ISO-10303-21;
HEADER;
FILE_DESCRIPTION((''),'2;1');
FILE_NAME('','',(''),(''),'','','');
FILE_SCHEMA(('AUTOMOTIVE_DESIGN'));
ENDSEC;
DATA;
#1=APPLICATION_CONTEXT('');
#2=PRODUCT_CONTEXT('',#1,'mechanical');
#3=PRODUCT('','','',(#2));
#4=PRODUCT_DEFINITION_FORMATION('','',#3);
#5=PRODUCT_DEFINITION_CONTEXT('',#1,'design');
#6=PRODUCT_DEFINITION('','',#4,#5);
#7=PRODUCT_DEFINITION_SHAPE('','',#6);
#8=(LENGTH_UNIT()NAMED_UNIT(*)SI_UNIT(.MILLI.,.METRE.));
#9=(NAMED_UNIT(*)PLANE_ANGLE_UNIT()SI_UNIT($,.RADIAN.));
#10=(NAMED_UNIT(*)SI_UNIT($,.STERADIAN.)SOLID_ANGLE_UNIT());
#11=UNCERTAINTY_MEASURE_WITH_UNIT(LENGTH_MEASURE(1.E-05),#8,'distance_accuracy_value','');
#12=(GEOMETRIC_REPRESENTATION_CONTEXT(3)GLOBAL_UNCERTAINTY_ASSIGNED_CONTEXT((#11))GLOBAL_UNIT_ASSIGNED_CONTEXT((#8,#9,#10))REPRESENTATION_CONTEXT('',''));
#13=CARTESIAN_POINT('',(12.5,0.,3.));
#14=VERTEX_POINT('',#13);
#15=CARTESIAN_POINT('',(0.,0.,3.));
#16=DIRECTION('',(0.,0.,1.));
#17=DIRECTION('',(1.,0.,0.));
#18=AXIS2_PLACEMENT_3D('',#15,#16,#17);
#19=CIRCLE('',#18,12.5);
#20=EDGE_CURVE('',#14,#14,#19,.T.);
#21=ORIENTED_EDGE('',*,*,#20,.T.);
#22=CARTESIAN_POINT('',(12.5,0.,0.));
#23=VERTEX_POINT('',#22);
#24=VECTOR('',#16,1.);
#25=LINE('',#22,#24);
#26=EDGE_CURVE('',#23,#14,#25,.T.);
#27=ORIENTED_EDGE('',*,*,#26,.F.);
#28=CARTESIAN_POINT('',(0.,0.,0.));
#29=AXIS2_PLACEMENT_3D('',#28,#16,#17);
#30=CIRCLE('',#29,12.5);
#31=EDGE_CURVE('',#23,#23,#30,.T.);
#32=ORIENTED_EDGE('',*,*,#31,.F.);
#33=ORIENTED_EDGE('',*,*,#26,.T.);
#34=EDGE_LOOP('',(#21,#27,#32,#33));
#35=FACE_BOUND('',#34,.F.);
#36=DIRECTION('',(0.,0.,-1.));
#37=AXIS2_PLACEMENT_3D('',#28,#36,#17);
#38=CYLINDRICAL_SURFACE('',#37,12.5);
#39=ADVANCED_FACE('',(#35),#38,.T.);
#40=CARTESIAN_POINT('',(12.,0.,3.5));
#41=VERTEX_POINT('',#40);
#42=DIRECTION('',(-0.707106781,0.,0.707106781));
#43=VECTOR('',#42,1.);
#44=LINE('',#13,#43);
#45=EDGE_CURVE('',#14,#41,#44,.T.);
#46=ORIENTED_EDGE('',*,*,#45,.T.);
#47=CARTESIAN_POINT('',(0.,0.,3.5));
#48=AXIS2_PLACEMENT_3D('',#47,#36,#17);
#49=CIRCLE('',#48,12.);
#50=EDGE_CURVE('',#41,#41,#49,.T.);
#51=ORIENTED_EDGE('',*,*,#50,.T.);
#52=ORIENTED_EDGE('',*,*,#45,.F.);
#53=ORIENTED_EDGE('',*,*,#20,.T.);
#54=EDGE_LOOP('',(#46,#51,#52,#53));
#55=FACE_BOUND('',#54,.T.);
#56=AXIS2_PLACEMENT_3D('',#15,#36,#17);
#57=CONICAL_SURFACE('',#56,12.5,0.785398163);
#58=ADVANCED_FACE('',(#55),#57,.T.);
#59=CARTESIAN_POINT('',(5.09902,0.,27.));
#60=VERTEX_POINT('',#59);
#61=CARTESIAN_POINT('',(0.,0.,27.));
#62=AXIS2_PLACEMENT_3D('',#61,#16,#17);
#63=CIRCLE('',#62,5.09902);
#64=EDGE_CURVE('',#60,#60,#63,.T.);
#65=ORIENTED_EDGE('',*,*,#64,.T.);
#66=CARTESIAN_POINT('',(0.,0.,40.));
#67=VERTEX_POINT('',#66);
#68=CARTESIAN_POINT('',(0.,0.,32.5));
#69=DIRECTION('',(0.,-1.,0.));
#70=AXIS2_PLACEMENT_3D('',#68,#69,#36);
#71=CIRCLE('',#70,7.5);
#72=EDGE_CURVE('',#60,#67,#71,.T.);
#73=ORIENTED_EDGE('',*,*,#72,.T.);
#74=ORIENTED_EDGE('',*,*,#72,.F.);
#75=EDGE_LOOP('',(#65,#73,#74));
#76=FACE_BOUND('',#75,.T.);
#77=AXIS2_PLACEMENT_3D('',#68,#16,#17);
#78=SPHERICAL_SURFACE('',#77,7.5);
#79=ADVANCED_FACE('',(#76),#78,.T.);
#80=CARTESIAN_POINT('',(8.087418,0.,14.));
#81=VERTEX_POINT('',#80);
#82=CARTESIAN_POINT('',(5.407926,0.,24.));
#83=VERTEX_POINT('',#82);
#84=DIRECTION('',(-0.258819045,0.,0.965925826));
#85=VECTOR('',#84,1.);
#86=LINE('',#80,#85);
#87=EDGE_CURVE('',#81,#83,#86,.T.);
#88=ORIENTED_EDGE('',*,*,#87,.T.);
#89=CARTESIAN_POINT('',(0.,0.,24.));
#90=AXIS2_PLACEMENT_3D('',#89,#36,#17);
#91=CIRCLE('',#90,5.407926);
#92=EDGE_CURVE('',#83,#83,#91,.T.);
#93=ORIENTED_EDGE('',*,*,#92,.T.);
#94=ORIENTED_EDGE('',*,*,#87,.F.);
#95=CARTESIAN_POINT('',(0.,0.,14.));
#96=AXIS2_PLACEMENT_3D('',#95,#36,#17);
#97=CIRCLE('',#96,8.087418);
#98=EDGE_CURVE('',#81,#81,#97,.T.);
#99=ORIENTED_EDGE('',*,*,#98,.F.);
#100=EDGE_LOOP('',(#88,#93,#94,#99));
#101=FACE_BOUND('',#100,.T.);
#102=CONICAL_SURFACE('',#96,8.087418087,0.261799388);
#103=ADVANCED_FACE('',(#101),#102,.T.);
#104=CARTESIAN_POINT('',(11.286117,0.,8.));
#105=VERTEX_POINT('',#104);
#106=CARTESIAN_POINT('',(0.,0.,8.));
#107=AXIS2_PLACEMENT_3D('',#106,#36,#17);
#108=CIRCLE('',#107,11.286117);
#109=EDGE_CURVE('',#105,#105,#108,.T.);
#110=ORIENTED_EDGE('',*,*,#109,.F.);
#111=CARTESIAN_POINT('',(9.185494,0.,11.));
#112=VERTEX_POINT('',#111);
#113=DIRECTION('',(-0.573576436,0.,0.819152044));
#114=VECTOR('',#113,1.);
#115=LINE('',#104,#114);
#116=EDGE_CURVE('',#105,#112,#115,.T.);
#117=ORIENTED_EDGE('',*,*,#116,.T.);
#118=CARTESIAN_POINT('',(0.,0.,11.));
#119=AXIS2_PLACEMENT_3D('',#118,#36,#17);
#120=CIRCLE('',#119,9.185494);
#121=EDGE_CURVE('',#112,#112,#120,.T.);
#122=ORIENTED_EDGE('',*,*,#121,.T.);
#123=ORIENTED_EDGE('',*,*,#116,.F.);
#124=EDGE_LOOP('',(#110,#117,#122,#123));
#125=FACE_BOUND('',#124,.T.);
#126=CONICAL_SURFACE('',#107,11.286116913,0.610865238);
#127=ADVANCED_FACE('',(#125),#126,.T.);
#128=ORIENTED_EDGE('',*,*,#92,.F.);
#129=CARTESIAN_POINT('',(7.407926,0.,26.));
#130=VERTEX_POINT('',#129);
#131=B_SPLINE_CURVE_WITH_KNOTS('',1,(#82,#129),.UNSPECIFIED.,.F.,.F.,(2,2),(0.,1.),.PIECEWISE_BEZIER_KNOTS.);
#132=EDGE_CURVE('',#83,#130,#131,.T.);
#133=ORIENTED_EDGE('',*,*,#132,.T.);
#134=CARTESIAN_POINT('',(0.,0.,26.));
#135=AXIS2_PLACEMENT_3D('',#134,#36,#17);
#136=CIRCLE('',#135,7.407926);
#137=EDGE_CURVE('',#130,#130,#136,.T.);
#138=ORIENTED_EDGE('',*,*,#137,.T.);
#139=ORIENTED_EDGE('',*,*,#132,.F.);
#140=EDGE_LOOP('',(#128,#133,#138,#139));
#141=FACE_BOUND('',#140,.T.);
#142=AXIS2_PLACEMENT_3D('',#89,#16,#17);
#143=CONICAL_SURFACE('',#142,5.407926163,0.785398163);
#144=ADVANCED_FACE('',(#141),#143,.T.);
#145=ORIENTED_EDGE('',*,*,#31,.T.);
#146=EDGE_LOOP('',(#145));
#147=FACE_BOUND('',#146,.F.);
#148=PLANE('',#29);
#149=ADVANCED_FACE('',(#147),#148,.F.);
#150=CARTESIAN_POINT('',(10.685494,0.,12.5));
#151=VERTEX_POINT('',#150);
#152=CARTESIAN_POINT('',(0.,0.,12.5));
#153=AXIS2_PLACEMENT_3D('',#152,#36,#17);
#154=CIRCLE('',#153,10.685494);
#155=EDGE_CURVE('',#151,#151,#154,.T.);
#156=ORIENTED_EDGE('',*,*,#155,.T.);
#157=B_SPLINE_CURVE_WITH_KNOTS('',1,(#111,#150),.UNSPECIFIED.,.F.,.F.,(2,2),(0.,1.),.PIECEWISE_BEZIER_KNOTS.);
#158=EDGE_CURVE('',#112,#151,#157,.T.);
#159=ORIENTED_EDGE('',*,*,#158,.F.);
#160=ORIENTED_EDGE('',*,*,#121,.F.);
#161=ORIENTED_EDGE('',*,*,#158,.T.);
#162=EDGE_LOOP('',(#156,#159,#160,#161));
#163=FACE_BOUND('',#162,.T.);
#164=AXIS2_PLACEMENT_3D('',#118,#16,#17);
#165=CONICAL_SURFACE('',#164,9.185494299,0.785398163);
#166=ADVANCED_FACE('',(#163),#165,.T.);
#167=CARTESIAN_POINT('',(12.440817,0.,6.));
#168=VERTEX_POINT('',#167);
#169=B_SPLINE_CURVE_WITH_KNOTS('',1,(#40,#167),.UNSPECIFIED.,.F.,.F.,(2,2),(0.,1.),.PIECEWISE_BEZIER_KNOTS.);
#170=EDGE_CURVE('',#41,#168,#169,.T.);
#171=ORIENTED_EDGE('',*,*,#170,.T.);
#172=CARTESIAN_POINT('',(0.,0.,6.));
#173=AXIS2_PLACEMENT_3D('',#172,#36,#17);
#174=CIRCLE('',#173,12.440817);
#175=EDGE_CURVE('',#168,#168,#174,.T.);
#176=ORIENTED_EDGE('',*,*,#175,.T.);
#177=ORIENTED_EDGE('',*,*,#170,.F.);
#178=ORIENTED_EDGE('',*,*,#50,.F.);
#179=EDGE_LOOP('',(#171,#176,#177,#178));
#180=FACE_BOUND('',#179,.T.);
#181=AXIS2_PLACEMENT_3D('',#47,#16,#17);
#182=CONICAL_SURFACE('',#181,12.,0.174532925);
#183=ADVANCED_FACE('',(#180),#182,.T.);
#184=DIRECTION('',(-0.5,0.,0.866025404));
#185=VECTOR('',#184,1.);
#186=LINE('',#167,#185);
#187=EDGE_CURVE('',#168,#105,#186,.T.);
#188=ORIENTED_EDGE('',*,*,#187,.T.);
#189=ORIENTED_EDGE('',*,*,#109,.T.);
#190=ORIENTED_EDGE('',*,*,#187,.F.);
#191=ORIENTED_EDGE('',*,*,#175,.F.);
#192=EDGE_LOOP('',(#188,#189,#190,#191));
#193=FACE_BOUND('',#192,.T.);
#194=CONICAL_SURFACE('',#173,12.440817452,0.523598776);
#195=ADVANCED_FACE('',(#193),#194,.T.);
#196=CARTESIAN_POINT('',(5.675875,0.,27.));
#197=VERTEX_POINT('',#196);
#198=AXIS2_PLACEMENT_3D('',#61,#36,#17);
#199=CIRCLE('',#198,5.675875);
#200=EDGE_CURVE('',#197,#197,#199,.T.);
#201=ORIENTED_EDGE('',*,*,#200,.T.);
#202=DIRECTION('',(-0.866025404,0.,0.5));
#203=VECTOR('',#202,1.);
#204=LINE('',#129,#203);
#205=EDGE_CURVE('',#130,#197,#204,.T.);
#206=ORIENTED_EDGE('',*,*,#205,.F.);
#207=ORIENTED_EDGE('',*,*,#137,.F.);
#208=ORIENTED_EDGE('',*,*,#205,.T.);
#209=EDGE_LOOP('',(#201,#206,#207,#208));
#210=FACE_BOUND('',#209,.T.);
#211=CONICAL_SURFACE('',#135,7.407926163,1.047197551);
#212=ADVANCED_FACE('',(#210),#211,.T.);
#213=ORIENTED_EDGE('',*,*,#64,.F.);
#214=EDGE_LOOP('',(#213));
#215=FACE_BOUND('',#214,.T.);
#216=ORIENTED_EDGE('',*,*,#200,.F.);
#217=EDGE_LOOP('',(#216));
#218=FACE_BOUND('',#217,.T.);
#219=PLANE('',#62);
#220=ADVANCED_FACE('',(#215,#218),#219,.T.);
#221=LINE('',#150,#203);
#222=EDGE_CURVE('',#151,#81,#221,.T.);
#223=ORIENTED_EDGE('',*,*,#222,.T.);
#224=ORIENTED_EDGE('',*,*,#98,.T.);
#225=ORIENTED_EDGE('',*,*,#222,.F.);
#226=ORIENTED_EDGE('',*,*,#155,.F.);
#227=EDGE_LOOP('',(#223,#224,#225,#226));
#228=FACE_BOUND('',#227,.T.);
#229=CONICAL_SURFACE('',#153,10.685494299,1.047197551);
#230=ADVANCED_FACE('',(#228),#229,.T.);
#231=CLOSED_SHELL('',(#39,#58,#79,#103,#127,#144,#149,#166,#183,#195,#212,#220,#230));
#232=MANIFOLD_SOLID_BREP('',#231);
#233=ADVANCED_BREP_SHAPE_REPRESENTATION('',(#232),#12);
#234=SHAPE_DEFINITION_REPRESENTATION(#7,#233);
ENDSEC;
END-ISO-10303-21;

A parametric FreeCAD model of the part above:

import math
import FreeCAD as App
import Part
import Sketcher
from FreeCAD import Vector
Q = App.Units.Quantity

doc = App.newDocument("Part")
body = doc.addObject("PartDesign::Body", "Body")

# Sketch on XY plane
sketch1 = doc.addObject("Sketcher::SketchObject", "Sketch")
body.addObject(sketch1)
sketch1.AttachmentSupport = (doc.XY_Plane, [""])
sketch1.MapMode = "FlatFace"
sketch1.addGeometry(Part.Circle(Vector(0, 0, 0), Vector(0, 0, 1), 12.5), False)
sketch1.addConstraint(Sketcher.Constraint("Coincident", 0, 3, -1, 1))
sketch1.addConstraint(Sketcher.Constraint("Diameter", 0, Q("25 mm")))
pad1 = doc.addObject("PartDesign::Pad", "Pad")
body.addObject(pad1)
pad1.Profile = sketch1
pad1.Length = 3

# Sketch on XY plane
sketch2 = doc.addObject("Sketcher::SketchObject", "Sketch001")
body.addObject(sketch2)
sketch2.AttachmentSupport = (doc.XY_Plane, [""])
sketch2.MapMode = "FlatFace"
sketch2.AttachmentOffset = App.Placement(Vector(0, 0, 3), App.Rotation())
sketch2.addGeometry(Part.Circle(Vector(0, 0, 0), Vector(0, 0, 1), 12.5), False)
sketch2.addConstraint(Sketcher.Constraint("Coincident", 0, 3, -1, 1))
sketch2.addConstraint(Sketcher.Constraint("Diameter", 0, Q("25 mm")))
pad2 = doc.addObject("PartDesign::Pad", "Pad001")
body.addObject(pad2)
pad2.Profile = sketch2
pad2.Length = 0.5
pad2.TaperAngle = -45

# Sketch on XY plane
sketch3 = doc.addObject("Sketcher::SketchObject", "Sketch002")
body.addObject(sketch3)
sketch3.AttachmentSupport = (doc.XY_Plane, [""])
sketch3.MapMode = "FlatFace"
sketch3.AttachmentOffset = App.Placement(Vector(0, 0, 3.5), App.Rotation())
sketch3.addGeometry(Part.Circle(Vector(0, 0, 0), Vector(0, 0, 1), 12), False)
sketch3.addConstraint(Sketcher.Constraint("Coincident", 0, 3, -1, 1))
sketch3.addConstraint(Sketcher.Constraint("Diameter", 0, Q("24 mm")))
pad3 = doc.addObject("PartDesign::Pad", "Pad002")
body.addObject(pad3)
pad3.Profile = sketch3
pad3.Length = 2.5
pad3.TaperAngle = 10

# Sketch on XY plane
sketch4 = doc.addObject("Sketcher::SketchObject", "Sketch003")
body.addObject(sketch4)
sketch4.AttachmentSupport = (doc.XY_Plane, [""])
sketch4.MapMode = "FlatFace"
sketch4.AttachmentOffset = App.Placement(Vector(0, 0, 6), App.Rotation())
sketch4.addGeometry(Part.Circle(Vector(0, 0, 0), Vector(0, 0, 1), 12.440817), False)
sketch4.addConstraint(Sketcher.Constraint("Coincident", 0, 3, -1, 1))
sketch4.addConstraint(Sketcher.Constraint("Diameter", 0, Q("24.881635 mm")))
pad4 = doc.addObject("PartDesign::Pad", "Pad003")
body.addObject(pad4)
pad4.Profile = sketch4
pad4.Length = 2
pad4.TaperAngle = -30

# Sketch on XY plane
sketch5 = doc.addObject("Sketcher::SketchObject", "Sketch004")
body.addObject(sketch5)
sketch5.AttachmentSupport = (doc.XY_Plane, [""])
sketch5.MapMode = "FlatFace"
sketch5.AttachmentOffset = App.Placement(Vector(0, 0, 8), App.Rotation())
sketch5.addGeometry(Part.Circle(Vector(0, 0, 0), Vector(0, 0, 1), 11.286117), False)
sketch5.addConstraint(Sketcher.Constraint("Coincident", 0, 3, -1, 1))
sketch5.addConstraint(Sketcher.Constraint("Diameter", 0, Q("22.572234 mm")))
pad5 = doc.addObject("PartDesign::Pad", "Pad004")
body.addObject(pad5)
pad5.Profile = sketch5
pad5.Length = 3
pad5.TaperAngle = -35

# Sketch on XY plane
sketch6 = doc.addObject("Sketcher::SketchObject", "Sketch005")
body.addObject(sketch6)
sketch6.AttachmentSupport = (doc.XY_Plane, [""])
sketch6.MapMode = "FlatFace"
sketch6.AttachmentOffset = App.Placement(Vector(0, 0, 11), App.Rotation())
sketch6.addGeometry(Part.Circle(Vector(0, 0, 0), Vector(0, 0, 1), 9.185494), False)
sketch6.addConstraint(Sketcher.Constraint("Coincident", 0, 3, -1, 1))
sketch6.addConstraint(Sketcher.Constraint("Diameter", 0, Q("18.370989 mm")))
pad6 = doc.addObject("PartDesign::Pad", "Pad005")
body.addObject(pad6)
pad6.Profile = sketch6
pad6.Length = 1.5
pad6.TaperAngle = 45

# Sketch on XY plane
sketch7 = doc.addObject("Sketcher::SketchObject", "Sketch006")
body.addObject(sketch7)
sketch7.AttachmentSupport = (doc.XY_Plane, [""])
sketch7.MapMode = "FlatFace"
sketch7.AttachmentOffset = App.Placement(Vector(0, 0, 12.5), App.Rotation())
sketch7.addGeometry(Part.Circle(Vector(0, 0, 0), Vector(0, 0, 1), 10.685494), False)
sketch7.addConstraint(Sketcher.Constraint("Coincident", 0, 3, -1, 1))
sketch7.addConstraint(Sketcher.Constraint("Diameter", 0, Q("21.370989 mm")))
pad7 = doc.addObject("PartDesign::Pad", "Pad006")
body.addObject(pad7)
pad7.Profile = sketch7
pad7.Length = 1.5
pad7.TaperAngle = -60

# Sketch on XY plane
sketch8 = doc.addObject("Sketcher::SketchObject", "Sketch007")
body.addObject(sketch8)
sketch8.AttachmentSupport = (doc.XY_Plane, [""])
sketch8.MapMode = "FlatFace"
sketch8.AttachmentOffset = App.Placement(Vector(0, 0, 14), App.Rotation())
sketch8.addGeometry(Part.Circle(Vector(0, 0, 0), Vector(0, 0, 1), 8.087418), False)
sketch8.addConstraint(Sketcher.Constraint("Coincident", 0, 3, -1, 1))
sketch8.addConstraint(Sketcher.Constraint("Diameter", 0, Q("16.174836 mm")))
pad8 = doc.addObject("PartDesign::Pad", "Pad007")
body.addObject(pad8)
pad8.Profile = sketch8
pad8.Length = 10
pad8.TaperAngle = -15

# Sketch on XY plane
sketch9 = doc.addObject("Sketcher::SketchObject", "Sketch008")
body.addObject(sketch9)
sketch9.AttachmentSupport = (doc.XY_Plane, [""])
sketch9.MapMode = "FlatFace"
sketch9.AttachmentOffset = App.Placement(Vector(0, 0, 24), App.Rotation())
sketch9.addGeometry(Part.Circle(Vector(0, 0, 0), Vector(0, 0, 1), 5.407926), False)
sketch9.addConstraint(Sketcher.Constraint("Coincident", 0, 3, -1, 1))
sketch9.addConstraint(Sketcher.Constraint("Diameter", 0, Q("10.815852 mm")))
pad9 = doc.addObject("PartDesign::Pad", "Pad008")
body.addObject(pad9)
pad9.Profile = sketch9
pad9.Length = 2
pad9.TaperAngle = 45

# Sketch on XY plane
sketch10 = doc.addObject("Sketcher::SketchObject", "Sketch009")
body.addObject(sketch10)
sketch10.AttachmentSupport = (doc.XY_Plane, [""])
sketch10.MapMode = "FlatFace"
sketch10.AttachmentOffset = App.Placement(Vector(0, 0, 26), App.Rotation())
sketch10.addGeometry(Part.Circle(Vector(0, 0, 0), Vector(0, 0, 1), 7.407926), False)
sketch10.addConstraint(Sketcher.Constraint("Coincident", 0, 3, -1, 1))
sketch10.addConstraint(Sketcher.Constraint("Diameter", 0, Q("14.815852 mm")))
pad10 = doc.addObject("PartDesign::Pad", "Pad009")
body.addObject(pad10)
pad10.Profile = sketch10
pad10.Length = 1
pad10.TaperAngle = -60

# Sketch on XZ plane
sketch11 = doc.addObject("Sketcher::SketchObject", "Sketch010")
body.addObject(sketch11)
sketch11.AttachmentSupport = (doc.XZ_Plane, [""])
sketch11.MapMode = "FlatFace"
sketch11.addGeometry(Part.ArcOfCircle(Part.Circle(Vector(0, 32.5, 0), Vector(0, 0, 1), 7.5), math.radians(-90), math.radians(90)), False)
sketch11.addGeometry(Part.LineSegment(Vector(0, 40, 0), Vector(0, 25, 0)), False)
sketch11.addConstraint(Sketcher.Constraint("Coincident", 0, 1, 1, 2))
sketch11.addConstraint(Sketcher.Constraint("Coincident", 1, 1, 0, 2))
sketch11.addConstraint(Sketcher.Constraint("Vertical", 1))
sketch11.addConstraint(Sketcher.Constraint("PointOnObject", 0, 3, -2))
sketch11.addConstraint(Sketcher.Constraint("PointOnObject", 0, 1, -2))
sketch11.addConstraint(Sketcher.Constraint("Radius", 0, Q("7.5 mm")))
sketch11.addConstraint(Sketcher.Constraint("DistanceY", -1, 1, 0, 1, Q("25 mm")))
revolution = doc.addObject("PartDesign::Revolution", "Revolution")
body.addObject(revolution)
revolution.Profile = sketch11
revolution.ReferenceAxis = (sketch11, ["V_Axis"])
revolution.Angle = 360

doc.recompute()
